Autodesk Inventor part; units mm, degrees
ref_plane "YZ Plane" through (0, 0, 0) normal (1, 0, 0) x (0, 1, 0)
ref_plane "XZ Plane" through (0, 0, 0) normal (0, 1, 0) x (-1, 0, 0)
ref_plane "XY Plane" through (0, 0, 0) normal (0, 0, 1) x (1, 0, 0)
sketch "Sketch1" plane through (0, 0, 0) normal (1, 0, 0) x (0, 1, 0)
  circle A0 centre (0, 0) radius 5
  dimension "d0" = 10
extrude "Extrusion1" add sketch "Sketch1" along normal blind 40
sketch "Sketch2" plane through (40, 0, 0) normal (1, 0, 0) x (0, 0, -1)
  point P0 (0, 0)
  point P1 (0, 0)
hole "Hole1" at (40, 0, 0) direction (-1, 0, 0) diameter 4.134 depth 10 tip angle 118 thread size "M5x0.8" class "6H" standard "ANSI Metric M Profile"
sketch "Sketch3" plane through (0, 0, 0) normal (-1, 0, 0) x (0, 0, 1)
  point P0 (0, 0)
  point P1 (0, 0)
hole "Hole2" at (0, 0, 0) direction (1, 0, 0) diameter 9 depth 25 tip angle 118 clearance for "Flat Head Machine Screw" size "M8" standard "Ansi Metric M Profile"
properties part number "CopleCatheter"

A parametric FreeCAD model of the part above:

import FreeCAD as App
import Part
import Sketcher
Q = App.Units.Quantity

doc = App.newDocument("Part")
body = doc.addObject("PartDesign::Body", "Body")

# Sketch on YZ plane
sketch1 = doc.addObject("Sketcher::SketchObject", "Sketch")
body.addObject(sketch1)
sketch1.AttachmentSupport = (doc.YZ_Plane, [""])
sketch1.MapMode = "FlatFace"
sketch1.addGeometry(Part.Circle(App.Vector(0, 0, 0), App.Vector(0, 0, 1), 5), False)
sketch1.addConstraint([
    Sketcher.Constraint("Coincident", 0, 3, -1, 1),
    Sketcher.Constraint("Diameter", 0, Q("10 mm")),
])
pad1 = doc.addObject("PartDesign::Pad", "Pad")
body.addObject(pad1)
pad1.Profile = sketch1
pad1.Length = 40

# Sketch on YZ plane
sketch2 = doc.addObject("Sketcher::SketchObject", "Sketch001")
body.addObject(sketch2)
sketch2.AttachmentSupport = (doc.YZ_Plane, [""])
sketch2.MapMode = "FlatFace"
sketch2.AttachmentOffset = App.Placement(App.Vector(0, 0, 40), App.Rotation())
sketch2.addGeometry(Part.Circle(App.Vector(0, 0, 0), App.Vector(0, 0, 1), 2.1), False)
sketch2.addConstraint([
    Sketcher.Constraint("Coincident", 0, 3, -1, 1),
    Sketcher.Constraint("Diameter", 0, Q("4.134 mm")),
])
doc.recompute()
hole = doc.addObject("PartDesign::Hole", "Hole")
body.addObject(hole)
hole.Profile = sketch2
hole.ThreadType = "None"
hole.Diameter = 4.134
hole.DepthType = "Dimension"
hole.Depth = 10
hole.DrillPoint = "Angled"
hole.DrillPointAngle = 118

# Sketch on YZ plane
sketch3 = doc.addObject("Sketcher::SketchObject", "Sketch002")
body.addObject(sketch3)
sketch3.AttachmentSupport = (doc.YZ_Plane, [""])
sketch3.MapMode = "FlatFace"
sketch3.addGeometry(Part.Circle(App.Vector(0, 0, 0), App.Vector(0, 0, 1), 4.5), False)
sketch3.addConstraint([
    Sketcher.Constraint("Coincident", 0, 3, -1, 1),
    Sketcher.Constraint("Diameter", 0, Q("9 mm")),
])
doc.recompute()
hole2 = doc.addObject("PartDesign::Hole", "Hole001")
body.addObject(hole2)
hole2.Profile = sketch3
hole2.ThreadType = "None"
hole2.Diameter = 9
hole2.DepthType = "Dimension"
hole2.Depth = 25
hole2.DrillPoint = "Angled"
hole2.DrillPointAngle = 118
hole2.Reversed = True

doc.recompute()
